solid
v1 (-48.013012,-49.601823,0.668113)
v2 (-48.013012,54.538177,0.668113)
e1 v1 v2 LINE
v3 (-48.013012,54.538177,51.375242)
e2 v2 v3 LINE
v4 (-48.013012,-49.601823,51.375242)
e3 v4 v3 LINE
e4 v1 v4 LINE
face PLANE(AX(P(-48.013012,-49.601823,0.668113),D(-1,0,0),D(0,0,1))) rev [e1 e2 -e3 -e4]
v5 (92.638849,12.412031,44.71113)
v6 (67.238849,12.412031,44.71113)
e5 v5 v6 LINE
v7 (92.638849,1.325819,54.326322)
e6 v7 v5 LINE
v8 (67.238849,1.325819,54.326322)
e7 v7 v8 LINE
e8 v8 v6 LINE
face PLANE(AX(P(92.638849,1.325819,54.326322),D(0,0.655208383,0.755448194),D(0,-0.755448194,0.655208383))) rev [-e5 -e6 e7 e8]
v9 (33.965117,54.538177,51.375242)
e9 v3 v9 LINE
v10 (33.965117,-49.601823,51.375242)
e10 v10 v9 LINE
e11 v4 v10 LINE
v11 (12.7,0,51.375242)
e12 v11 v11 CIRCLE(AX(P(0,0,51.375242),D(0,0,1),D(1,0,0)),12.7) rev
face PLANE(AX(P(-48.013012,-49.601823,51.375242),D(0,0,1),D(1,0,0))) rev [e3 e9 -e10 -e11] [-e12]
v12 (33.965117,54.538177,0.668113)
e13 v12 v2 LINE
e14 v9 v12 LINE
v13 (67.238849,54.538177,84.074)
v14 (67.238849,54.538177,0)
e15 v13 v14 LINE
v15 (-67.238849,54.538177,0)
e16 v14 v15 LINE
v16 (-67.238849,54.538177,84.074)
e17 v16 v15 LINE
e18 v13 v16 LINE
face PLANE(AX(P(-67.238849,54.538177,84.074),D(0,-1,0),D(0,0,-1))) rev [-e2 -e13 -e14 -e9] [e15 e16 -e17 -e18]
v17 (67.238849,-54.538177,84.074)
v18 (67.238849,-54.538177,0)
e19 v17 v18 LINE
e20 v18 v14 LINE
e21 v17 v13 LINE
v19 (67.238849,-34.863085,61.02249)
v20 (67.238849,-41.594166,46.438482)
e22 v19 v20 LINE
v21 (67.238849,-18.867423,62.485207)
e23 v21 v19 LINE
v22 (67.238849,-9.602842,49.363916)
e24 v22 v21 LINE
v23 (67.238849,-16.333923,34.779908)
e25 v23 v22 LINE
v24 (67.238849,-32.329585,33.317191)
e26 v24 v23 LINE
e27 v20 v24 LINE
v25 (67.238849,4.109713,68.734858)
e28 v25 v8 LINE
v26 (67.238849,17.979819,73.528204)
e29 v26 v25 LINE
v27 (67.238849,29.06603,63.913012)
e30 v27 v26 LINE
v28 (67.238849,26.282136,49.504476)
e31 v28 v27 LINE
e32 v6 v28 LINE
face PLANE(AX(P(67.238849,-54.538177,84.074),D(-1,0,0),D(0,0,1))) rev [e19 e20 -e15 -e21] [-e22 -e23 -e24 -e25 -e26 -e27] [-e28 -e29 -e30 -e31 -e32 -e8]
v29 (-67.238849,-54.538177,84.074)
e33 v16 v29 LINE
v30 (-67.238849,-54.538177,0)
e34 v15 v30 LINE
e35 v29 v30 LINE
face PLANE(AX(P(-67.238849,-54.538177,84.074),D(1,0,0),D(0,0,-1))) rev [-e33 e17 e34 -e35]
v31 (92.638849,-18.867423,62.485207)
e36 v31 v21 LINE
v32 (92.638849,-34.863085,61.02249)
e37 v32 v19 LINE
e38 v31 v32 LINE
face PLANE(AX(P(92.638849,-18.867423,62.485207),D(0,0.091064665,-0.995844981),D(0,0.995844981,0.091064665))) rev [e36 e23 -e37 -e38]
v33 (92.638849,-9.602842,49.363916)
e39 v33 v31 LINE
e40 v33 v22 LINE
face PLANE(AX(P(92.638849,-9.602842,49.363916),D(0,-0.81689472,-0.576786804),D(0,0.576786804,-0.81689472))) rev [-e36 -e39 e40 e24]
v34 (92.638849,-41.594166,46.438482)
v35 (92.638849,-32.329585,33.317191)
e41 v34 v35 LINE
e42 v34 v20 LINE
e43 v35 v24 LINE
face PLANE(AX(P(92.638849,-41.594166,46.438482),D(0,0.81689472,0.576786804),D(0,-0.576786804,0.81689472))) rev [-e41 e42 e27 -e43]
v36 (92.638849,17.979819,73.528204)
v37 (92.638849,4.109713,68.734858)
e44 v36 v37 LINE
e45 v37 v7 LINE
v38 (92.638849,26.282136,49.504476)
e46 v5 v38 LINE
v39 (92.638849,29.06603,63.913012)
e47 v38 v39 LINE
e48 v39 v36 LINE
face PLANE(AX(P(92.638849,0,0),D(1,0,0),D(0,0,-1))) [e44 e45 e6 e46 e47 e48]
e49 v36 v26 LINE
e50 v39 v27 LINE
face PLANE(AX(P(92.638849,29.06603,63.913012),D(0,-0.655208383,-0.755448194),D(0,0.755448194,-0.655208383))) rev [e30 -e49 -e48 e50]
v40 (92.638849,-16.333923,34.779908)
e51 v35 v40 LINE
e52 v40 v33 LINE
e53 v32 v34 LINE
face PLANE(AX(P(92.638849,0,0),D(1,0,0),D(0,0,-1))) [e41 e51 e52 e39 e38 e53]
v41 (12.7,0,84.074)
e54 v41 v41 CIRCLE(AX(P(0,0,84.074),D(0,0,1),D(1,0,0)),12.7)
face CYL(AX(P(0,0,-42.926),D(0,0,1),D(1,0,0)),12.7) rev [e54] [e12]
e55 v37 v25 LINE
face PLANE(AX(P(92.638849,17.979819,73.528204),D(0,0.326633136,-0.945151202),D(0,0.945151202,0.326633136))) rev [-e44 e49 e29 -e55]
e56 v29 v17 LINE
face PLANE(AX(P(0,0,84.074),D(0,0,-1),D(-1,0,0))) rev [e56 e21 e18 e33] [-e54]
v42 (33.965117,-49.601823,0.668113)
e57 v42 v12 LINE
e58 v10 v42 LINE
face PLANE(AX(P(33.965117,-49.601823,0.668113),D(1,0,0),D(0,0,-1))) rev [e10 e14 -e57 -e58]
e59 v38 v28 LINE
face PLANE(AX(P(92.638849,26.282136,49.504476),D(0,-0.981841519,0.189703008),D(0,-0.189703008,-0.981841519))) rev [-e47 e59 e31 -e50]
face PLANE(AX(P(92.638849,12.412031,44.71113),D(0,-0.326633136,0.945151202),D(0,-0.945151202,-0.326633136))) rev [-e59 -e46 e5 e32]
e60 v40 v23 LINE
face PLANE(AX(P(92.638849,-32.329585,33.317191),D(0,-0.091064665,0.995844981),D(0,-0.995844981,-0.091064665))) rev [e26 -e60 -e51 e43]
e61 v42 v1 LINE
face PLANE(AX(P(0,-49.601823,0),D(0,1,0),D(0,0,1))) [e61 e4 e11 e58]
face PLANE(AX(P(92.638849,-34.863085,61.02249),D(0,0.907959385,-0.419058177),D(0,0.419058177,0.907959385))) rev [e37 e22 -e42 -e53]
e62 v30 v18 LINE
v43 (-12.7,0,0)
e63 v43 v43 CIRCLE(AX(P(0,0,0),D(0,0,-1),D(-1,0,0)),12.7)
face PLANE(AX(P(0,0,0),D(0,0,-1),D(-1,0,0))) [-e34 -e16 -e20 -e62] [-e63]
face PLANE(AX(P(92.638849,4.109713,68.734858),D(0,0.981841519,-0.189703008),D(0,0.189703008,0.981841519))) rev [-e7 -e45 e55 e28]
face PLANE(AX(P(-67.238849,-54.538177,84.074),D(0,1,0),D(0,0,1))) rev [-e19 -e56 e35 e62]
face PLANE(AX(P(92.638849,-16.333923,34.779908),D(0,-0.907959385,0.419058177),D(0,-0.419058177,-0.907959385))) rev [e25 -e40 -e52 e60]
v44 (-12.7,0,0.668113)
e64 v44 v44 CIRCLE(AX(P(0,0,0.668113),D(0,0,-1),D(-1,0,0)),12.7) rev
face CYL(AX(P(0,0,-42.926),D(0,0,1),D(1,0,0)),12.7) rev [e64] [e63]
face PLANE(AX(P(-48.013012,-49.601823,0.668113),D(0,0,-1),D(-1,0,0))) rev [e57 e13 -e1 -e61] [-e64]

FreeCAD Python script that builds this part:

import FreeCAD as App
import Part
import Sketcher
Q = App.Units.Quantity


def add_polygon(sketch, points):
    """Adds a closed chain of lines whose ends are joined by coincident constraints."""
    first, n = sketch.GeometryCount, len(points)
    for a, b in zip(points, points[1:] + points[:1]):
        sketch.addGeometry(Part.LineSegment(App.Vector(*a, 0), App.Vector(*b, 0)), False)
    for i in range(n):
        sketch.addConstraint(Sketcher.Constraint("Coincident", first + i, 2, first + (i + 1) % n, 1))

doc = App.newDocument("Part")
body = doc.addObject("PartDesign::Body", "Body")

sketch1 = doc.addObject("Sketcher::SketchObject", "Sketch")
body.addObject(sketch1)
sketch1.AttachmentSupport = (doc.XY_Plane, [""])
sketch1.MapMode = "FlatFace"
add_polygon(sketch1, [(-67, 55), (-67, -55), (67, -55), (67, 55)])
sketch1.addConstraint(Sketcher.Constraint("Vertical", 0))
sketch1.addConstraint(Sketcher.Constraint("Horizontal", 1))
sketch1.addConstraint(Sketcher.Constraint("Vertical", 2))
sketch1.addConstraint(Sketcher.Constraint("Horizontal", 3))
sketch1.addConstraint(Sketcher.Constraint("Symmetric", 0, 2, 2, 2, -1, 1))
sketch1.addConstraint(Sketcher.Constraint("DistanceX", 1, 1, 1, 2, Q("134.477697 mm")))
sketch1.addConstraint(Sketcher.Constraint("DistanceY", 0, 2, 0, 1, Q("109.076354 mm")))
pad1 = doc.addObject("PartDesign::Pad", "Pad")
body.addObject(pad1)
pad1.Profile = sketch1
pad1.Length = Q("3.31 in")

sketch2 = doc.addObject("Sketcher::SketchObject", "Sketch001")
body.addObject(sketch2)
sketch2.AttachmentSupport = (doc.XY_Plane, [""])
sketch2.MapMode = "FlatFace"
sketch2.AttachmentOffset = App.Placement(App.Vector(0, 0, 3.31 * 25.4), App.Rotation())
sketch2.addGeometry(Part.Circle(App.Vector(0, 0, 0), App.Vector(0, 0, 1), 13), False)
sketch2.addConstraint(Sketcher.Constraint("Coincident", 0, 3, -1, 1))
sketch2.addConstraint(Sketcher.Constraint("Diameter", 0, Q("1 in")))
pocket1 = doc.addObject("PartDesign::Pocket", "Pocket")
body.addObject(pocket1)
pocket1.Profile = sketch2
pocket1.Length = Q("5 in")

sketch3 = doc.addObject("Sketcher::SketchObject", "Sketch002")
body.addObject(sketch3)
sketch3.AttachmentSupport = (doc.XZ_Plane, [""])
sketch3.MapMode = "FlatFace"
sketch3.AttachmentOffset = App.Placement(App.Vector(0, 0, -54.538177), App.Rotation())
add_polygon(sketch3, [(-48, 1), (-48, 51), (34, 51), (34, 1)])
sketch3.addConstraint(Sketcher.Constraint("Vertical", 0))
sketch3.addConstraint(Sketcher.Constraint("Horizontal", 1))
sketch3.addConstraint(Sketcher.Constraint("Vertical", 2))
sketch3.addConstraint(Sketcher.Constraint("Horizontal", 3))
sketch3.addConstraint(Sketcher.Constraint("DistanceX", 1, 1, 1, 2, Q("81.978128 mm")))
sketch3.addConstraint(Sketcher.Constraint("DistanceY", 0, 1, 0, 2, Q("50.707129 mm")))
sketch3.addConstraint(Sketcher.Constraint("DistanceX", 0, 2, -1, 1, Q("48.013012 mm")))
sketch3.addConstraint(Sketcher.Constraint("DistanceY", -1, 1, 0, 2, Q("51.375242 mm")))
pocket2 = doc.addObject("PartDesign::Pocket", "Pocket001")
body.addObject(pocket2)
pocket2.Profile = sketch3
pocket2.Length = Q("4.1 in")
pocket2.Reversed = True

sketch4 = doc.addObject("Sketcher::SketchObject", "Sketch003")
body.addObject(sketch4)
sketch4.AttachmentSupport = (doc.YZ_Plane, [""])
sketch4.MapMode = "FlatFace"
sketch4.AttachmentOffset = App.Placement(App.Vector(0, 0, 67.238849), App.Rotation())
add_polygon(sketch4, [(1.325819, 54.326322), (12.412031, 44.71113), (26.282136, 49.504476), (29.06603, 63.913012), (17.979819, 73.528204), (4.109713, 68.734858)])
sketch4.addConstraint(Sketcher.Constraint("DistanceX", 0, 2, 2, 2, Q("16.654 mm")))
sketch4.addConstraint(Sketcher.Constraint("DistanceX", 5, 2, 3, 2, Q("16.654 mm")))
sketch4.addConstraint(Sketcher.Constraint("DistanceX", -1, 1, 0, 2, Q("12.412031 mm")))
sketch4.addConstraint(Sketcher.Constraint("DistanceY", -1, 1, 0, 2, Q("44.71113 mm")))
sketch4.addConstraint(Sketcher.Constraint("DistanceX", -1, 1, 3, 2, Q("17.979819 mm")))
sketch4.addConstraint(Sketcher.Constraint("DistanceY", -1, 1, 4, 2, Q("68.734858 mm")))
sketch4.addConstraint(Sketcher.Constraint("DistanceY", -1, 1, 5, 2, Q("54.326322 mm")))
sketch4.addConstraint(Sketcher.Constraint("DistanceY", 2, 2, 3, 2, Q("9.615191 mm")))
sketch4.addConstraint(Sketcher.Constraint("DistanceY", 5, 2, 2, 2, Q("9.586691 mm")))
sketch4.addConstraint(Sketcher.Constraint("Distance", 1, Q("14.675013 mm")))
sketch4.addConstraint(Sketcher.Constraint("Distance", 2, Q("14.675013 mm")))
sketch4.addConstraint(Sketcher.Constraint("Distance", 4, Q("14.675013 mm")))
pad2 = doc.addObject("PartDesign::Pad", "Pad001")
body.addObject(pad2)
pad2.Profile = sketch4
pad2.Length = Q("1 in")

sketch5 = doc.addObject("Sketcher::SketchObject", "Sketch004")
body.addObject(sketch5)
sketch5.AttachmentSupport = (doc.YZ_Plane, [""])
sketch5.MapMode = "FlatFace"
sketch5.AttachmentOffset = App.Placement(App.Vector(0, 0, 67.238849), App.Rotation())
add_polygon(sketch5, [(-32, 33), (-16, 35), (-10, 49), (-19, 62), (-35, 61), (-42, 46)])
sketch5.addConstraint(Sketcher.Constraint("Parallel", 0, 3))
sketch5.addConstraint(Sketcher.Constraint("Parallel", 1, 4))
sketch5.addConstraint(Sketcher.Constraint("Parallel", 2, 5))
sketch5.addConstraint(Sketcher.Constraint("Equal", 0, 1))
sketch5.addConstraint(Sketcher.Constraint("Equal", 1, 2))
sketch5.addConstraint(Sketcher.Constraint("Equal", 2, 3))
sketch5.addConstraint(Sketcher.Constraint("Distance", 0, Q("16.062402 mm")))
sketch5.addConstraint(Sketcher.Constraint("DistanceX", 2, 2, 0, 2, Q("2.533501 mm")))
sketch5.addConstraint(Sketcher.Constraint("DistanceY", 0, 2, 2, 2, Q("27.705299 mm")))
sketch5.addConstraint(Sketcher.Constraint("DistanceY", -1, 1, 0, 2, Q("34.779908 mm")))
sketch5.addConstraint(Sketcher.Constraint("DistanceY", -1, 1, 3, 2, Q("61.02249 mm")))
sketch5.addConstraint(Sketcher.Constraint("DistanceX", 0, 2, -1, 1, Q("16.333923 mm")))
pad3 = doc.addObject("PartDesign::Pad", "Pad002")
body.addObject(pad3)
pad3.Profile = sketch5
pad3.Length = Q("1 in")

doc.recompute()
